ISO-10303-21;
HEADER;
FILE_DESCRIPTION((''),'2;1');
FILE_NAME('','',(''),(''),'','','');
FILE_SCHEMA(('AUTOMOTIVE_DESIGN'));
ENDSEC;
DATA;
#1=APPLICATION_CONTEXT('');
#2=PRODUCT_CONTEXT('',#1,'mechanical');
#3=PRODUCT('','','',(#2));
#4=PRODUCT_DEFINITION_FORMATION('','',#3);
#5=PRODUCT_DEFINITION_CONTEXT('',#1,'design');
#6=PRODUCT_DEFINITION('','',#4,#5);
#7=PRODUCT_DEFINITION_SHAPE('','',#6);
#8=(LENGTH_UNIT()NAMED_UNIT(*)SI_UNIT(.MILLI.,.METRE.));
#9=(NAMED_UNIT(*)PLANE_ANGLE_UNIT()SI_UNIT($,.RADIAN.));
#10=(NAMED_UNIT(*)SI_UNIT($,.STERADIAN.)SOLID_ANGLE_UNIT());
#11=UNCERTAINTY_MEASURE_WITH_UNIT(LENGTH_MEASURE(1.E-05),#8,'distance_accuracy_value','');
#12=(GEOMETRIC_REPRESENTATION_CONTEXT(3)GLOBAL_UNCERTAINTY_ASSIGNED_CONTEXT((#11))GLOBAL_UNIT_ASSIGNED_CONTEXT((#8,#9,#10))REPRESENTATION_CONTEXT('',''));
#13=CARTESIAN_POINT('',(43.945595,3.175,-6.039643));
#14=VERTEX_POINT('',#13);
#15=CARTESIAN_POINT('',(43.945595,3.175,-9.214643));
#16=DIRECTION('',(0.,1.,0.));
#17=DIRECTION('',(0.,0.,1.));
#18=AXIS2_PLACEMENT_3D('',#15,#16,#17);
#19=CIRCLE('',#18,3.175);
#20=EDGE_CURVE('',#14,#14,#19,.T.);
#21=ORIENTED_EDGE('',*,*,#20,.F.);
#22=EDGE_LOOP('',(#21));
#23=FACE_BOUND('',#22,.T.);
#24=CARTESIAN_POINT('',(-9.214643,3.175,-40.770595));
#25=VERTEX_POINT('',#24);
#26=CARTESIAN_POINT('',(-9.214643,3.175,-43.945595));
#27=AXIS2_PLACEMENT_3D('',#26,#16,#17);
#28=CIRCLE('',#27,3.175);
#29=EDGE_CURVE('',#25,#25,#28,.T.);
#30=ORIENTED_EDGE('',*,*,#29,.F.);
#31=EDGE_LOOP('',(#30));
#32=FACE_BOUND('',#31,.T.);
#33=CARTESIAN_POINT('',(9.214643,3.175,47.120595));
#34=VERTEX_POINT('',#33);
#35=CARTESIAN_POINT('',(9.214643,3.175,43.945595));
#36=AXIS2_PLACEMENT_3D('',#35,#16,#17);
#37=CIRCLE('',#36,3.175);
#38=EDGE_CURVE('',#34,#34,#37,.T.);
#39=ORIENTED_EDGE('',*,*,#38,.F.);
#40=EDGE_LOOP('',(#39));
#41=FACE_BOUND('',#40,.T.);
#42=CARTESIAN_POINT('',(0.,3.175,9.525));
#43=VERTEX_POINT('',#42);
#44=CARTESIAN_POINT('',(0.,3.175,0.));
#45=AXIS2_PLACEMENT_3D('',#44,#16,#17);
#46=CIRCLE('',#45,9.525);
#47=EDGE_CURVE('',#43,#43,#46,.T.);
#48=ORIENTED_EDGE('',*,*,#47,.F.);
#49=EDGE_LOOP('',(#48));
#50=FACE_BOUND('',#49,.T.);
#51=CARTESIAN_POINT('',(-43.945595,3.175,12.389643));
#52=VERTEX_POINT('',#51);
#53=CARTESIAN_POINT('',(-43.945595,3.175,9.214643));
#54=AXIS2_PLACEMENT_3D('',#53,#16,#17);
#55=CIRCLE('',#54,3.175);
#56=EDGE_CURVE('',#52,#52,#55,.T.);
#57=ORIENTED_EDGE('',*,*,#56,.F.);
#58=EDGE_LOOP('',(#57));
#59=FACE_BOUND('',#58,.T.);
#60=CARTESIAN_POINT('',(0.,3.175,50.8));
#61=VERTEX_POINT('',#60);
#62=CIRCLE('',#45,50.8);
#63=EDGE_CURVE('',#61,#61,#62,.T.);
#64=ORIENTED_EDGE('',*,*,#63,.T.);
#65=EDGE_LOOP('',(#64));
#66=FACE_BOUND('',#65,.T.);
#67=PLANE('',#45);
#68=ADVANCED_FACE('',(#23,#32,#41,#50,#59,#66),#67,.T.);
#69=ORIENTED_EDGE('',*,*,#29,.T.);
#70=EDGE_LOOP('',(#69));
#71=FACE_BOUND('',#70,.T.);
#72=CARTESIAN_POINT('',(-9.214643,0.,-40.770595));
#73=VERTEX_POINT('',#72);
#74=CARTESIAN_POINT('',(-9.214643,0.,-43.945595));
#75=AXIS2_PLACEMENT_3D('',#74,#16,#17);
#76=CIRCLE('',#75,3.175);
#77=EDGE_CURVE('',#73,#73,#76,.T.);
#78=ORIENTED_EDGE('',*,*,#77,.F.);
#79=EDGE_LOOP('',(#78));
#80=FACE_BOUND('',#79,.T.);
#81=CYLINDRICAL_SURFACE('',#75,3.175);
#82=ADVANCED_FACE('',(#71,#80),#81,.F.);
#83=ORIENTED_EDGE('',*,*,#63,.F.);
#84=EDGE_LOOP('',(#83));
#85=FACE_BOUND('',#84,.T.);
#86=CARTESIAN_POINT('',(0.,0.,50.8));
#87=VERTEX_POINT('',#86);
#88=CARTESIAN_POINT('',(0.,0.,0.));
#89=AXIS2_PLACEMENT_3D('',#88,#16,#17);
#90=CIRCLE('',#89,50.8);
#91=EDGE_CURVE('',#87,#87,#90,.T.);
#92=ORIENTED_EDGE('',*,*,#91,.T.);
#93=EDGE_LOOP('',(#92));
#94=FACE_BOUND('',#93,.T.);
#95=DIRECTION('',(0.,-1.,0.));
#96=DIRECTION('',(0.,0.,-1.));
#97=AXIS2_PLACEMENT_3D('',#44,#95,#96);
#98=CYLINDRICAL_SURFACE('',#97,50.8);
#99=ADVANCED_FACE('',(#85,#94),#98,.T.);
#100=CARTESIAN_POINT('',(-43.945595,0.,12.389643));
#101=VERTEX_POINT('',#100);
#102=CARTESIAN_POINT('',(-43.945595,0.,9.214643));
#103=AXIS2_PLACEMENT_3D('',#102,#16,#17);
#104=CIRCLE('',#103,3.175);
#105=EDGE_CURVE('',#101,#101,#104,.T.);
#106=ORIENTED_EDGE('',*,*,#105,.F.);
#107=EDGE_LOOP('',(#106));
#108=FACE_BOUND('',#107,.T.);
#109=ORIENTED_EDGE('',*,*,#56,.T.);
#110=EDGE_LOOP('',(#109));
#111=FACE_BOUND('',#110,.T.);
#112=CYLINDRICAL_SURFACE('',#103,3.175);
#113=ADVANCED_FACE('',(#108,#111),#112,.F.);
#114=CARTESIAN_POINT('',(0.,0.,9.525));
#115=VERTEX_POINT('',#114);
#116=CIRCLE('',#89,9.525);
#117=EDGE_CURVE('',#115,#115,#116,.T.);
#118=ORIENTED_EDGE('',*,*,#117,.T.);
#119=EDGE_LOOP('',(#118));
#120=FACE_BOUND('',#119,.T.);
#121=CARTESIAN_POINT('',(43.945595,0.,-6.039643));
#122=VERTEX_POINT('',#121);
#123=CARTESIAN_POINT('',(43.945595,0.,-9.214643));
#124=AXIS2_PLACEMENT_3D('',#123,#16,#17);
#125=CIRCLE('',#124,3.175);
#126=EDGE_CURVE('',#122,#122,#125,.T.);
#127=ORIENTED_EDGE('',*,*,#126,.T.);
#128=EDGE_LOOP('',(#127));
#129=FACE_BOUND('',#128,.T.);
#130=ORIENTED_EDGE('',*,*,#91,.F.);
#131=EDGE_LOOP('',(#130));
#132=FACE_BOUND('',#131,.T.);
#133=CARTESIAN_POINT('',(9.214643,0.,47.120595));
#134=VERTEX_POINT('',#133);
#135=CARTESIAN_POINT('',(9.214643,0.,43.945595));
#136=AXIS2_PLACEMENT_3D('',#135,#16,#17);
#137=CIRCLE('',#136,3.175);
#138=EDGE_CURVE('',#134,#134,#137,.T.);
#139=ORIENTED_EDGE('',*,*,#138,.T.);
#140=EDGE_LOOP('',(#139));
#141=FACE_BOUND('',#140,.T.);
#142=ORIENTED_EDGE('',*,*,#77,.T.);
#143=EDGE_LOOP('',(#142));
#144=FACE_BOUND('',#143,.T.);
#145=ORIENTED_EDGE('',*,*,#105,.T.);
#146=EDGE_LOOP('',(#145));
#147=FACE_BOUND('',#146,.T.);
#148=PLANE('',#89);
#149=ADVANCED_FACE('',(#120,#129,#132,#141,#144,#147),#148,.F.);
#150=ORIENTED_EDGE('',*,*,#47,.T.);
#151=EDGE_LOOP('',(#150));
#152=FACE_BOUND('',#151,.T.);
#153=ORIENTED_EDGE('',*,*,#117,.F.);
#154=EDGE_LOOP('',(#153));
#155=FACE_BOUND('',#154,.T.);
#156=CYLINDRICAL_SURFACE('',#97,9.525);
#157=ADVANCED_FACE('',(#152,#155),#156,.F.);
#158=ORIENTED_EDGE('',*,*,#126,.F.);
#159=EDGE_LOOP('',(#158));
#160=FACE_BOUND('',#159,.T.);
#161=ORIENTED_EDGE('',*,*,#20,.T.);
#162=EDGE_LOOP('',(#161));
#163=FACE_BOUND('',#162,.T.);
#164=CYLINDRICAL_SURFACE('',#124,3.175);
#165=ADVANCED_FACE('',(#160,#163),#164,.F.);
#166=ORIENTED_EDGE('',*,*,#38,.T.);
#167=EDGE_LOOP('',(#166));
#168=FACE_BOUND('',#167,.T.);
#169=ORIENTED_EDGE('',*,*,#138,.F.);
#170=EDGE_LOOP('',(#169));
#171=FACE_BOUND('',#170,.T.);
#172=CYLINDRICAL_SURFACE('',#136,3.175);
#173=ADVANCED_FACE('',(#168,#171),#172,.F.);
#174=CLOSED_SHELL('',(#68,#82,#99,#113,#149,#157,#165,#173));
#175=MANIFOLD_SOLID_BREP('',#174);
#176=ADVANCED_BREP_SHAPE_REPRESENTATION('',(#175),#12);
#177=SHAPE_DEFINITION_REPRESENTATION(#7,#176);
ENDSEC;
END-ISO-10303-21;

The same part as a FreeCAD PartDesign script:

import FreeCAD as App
import Part
import Sketcher
from FreeCAD import Vector
Q = App.Units.Quantity

doc = App.newDocument("Part")
params = doc.addObject("Spreadsheet::Sheet", "Params")
for row, (alias, value) in enumerate([
    ("sketch1_diameter", "4 in"),
    ("sketch1_diameter2", "0.75 in"),
    ("pad1_length", "0.125 in"),
    ("sketch2_diameter", "0.25 in"),
    ("pocket1_length", "0.125 in"),
], start=1):
    params.set(f"A{row}", alias)
    params.set(f"B{row}", "=" + value)
    params.setAlias(f"B{row}", alias)

body = doc.addObject("PartDesign::Body", "Body")

# Sketch on XZ plane
sketch1 = body.newObject("Sketcher::SketchObject", "Sketch")
sketch1.AttachmentSupport = (doc.getObject("XZ_Plane"), [""])
sketch1.MapMode = "FlatFace"
sketch1.addGeometry([
    Part.Circle(Vector(0, 0, 0), Vector(0, 0, 1), 51),
    Part.Circle(Vector(0, 0, 0), Vector(0, 0, 1), 10),
], False)
sketch1.addConstraint([
    Sketcher.Constraint("Coincident", 0, 3, -1, 1),
    Sketcher.Constraint("Coincident", 1, 3, -1, 1),
    Sketcher.Constraint("Diameter", 0, Q("4 in")),
    Sketcher.Constraint("Diameter", 1, Q("0.75 in")),
])
sketch1.setExpression("Constraints[2]", "Params.sketch1_diameter")
sketch1.setExpression("Constraints[3]", "Params.sketch1_diameter2")
pad1 = body.newObject("PartDesign::Pad", "Pad")
pad1.Profile = sketch1
pad1.setExpression("Length", "Params.pad1_length")
pad1.Reversed = True

# Sketch on XZ plane
sketch2 = body.newObject("Sketcher::SketchObject", "Sketch001")
sketch2.AttachmentSupport = (doc.getObject("XZ_Plane"), [""])
sketch2.MapMode = "FlatFace"
sketch2.AttachmentOffset = App.Placement(Vector(0, 0, -0.125 * 25.4), App.Rotation())
sketch2.addGeometry([
    Part.Circle(Vector(-43.9, 9.2, 0), Vector(0, 0, 1), 3.2),
    Part.Circle(Vector(-9.2, -43.9, 0), Vector(0, 0, 1), 3.2),
    Part.Circle(Vector(43.9, -9.2, 0), Vector(0, 0, 1), 3.2),
    Part.Circle(Vector(9.2, 43.9, 0), Vector(0, 0, 1), 3.2),
], False)
sketch2.addConstraint([
    Sketcher.Constraint("Equal", 0, 1),
    Sketcher.Constraint("Equal", 1, 2),
    Sketcher.Constraint("Equal", 2, 3),
    Sketcher.Constraint("Symmetric", 0, 3, 2, 3, -1, 1),
    Sketcher.Constraint("Symmetric", 1, 3, 3, 3, -1, 1),
    Sketcher.Constraint("Diameter", 0, Q("0.25 in")),
    Sketcher.Constraint("DistanceY", 1, 3, 0, 3, Q("53.160238 mm")),
    Sketcher.Constraint("DistanceX", 1, 3, 2, 3, Q("53.160238 mm")),
    Sketcher.Constraint("DistanceX", 0, 3, 2, 3, Q("87.891191 mm")),
    Sketcher.Constraint("DistanceY", 1, 3, 3, 3, Q("87.891191 mm")),
])
sketch2.setExpression("Constraints[5]", "Params.sketch2_diameter")
pocket1 = body.newObject("PartDesign::Pocket", "Pocket")
pocket1.Profile = sketch2
pocket1.setExpression("Length", "Params.pocket1_length")
pocket1.Reversed = True

doc.recompute()
